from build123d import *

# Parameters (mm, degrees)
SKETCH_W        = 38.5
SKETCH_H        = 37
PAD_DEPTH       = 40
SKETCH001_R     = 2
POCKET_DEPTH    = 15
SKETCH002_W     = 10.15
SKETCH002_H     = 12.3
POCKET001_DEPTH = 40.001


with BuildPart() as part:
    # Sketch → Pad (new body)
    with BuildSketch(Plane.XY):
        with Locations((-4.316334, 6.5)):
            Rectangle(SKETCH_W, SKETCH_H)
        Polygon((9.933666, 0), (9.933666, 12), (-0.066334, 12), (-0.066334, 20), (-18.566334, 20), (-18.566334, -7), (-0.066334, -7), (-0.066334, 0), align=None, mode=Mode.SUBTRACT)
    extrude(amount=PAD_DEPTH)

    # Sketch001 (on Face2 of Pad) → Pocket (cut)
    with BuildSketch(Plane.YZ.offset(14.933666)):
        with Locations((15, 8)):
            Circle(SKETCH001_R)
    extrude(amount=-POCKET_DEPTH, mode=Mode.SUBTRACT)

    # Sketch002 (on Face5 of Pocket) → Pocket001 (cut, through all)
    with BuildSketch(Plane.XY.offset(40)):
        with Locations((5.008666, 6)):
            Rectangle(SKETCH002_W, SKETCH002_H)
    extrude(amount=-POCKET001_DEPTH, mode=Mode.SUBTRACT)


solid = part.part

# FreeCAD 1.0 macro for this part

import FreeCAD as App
import Part
import Sketcher
from FreeCAD import Vector


def add_polygon(sketch, points):
    """Adds a closed chain of lines whose ends are joined by coincident constraints."""
    first, n = sketch.GeometryCount, len(points)
    for a, b in zip(points, points[1:] + points[:1]):
        sketch.addGeometry(Part.LineSegment(App.Vector(*a, 0), App.Vector(*b, 0)), False)
    for i in range(n):
        sketch.addConstraint(Sketcher.Constraint("Coincident", first + i, 2, first + (i + 1) % n, 1))

doc = App.newDocument("Part")
params = doc.addObject("Spreadsheet::Sheet", "Params")
for row, (alias, value) in enumerate([
    ("sketch1_width", "10 mm"),
    ("sketch1_height", "37 mm"),
    ("sketch1_height2", "12 mm"),
    ("sketch1_height3", "7 mm"),
    ("sketch1_height4", "27 mm"),
    ("pad1_length", "40 mm"),
    ("sketch2_diameter", "4 mm"),
    ("pocket1_length", "15 mm"),
    ("sketch3_height", "12.3 mm"),
    ("sketch3_width", "10.15 mm"),
], start=1):
    params.set(f"A{row}", alias)
    params.set(f"B{row}", "=" + value)
    params.setAlias(f"B{row}", alias)

body = doc.addObject("PartDesign::Body", "Body")

# Sketch on XY plane
sketch1 = doc.addObject("Sketcher::SketchObject", "Sketch")
body.addObject(sketch1)
sketch1.AttachmentSupport = (doc.XY_Plane, [""])
sketch1.MapMode = "FlatFace"
add_polygon(sketch1, [(-24, 25), (-24, -12), (15, -12), (15, 25)])  # lines 0-3
add_polygon(sketch1, [(10, 12), (10, 0), (0, 0), (0, -7), (-19, -7), (-19, 20), (0, 20), (0, 12)])  # lines 4-11
sketch1.addConstraint(Sketcher.Constraint("Vertical", 0))
sketch1.addConstraint(Sketcher.Constraint("Horizontal", 1))
sketch1.addConstraint(Sketcher.Constraint("Vertical", 2))
sketch1.addConstraint(Sketcher.Constraint("Horizontal", 3))
sketch1.addConstraint(Sketcher.Constraint("Vertical", 4))
sketch1.addConstraint(Sketcher.Constraint("Horizontal", 5))
sketch1.addConstraint(Sketcher.Constraint("Vertical", 6))
sketch1.addConstraint(Sketcher.Constraint("Horizontal", 7))
sketch1.addConstraint(Sketcher.Constraint("Vertical", 8))
sketch1.addConstraint(Sketcher.Constraint("Horizontal", 9))
sketch1.addConstraint(Sketcher.Constraint("Vertical", 10))
sketch1.addConstraint(Sketcher.Constraint("Horizontal", 11))
sketch1.addConstraint(Sketcher.Constraint("PointOnObject", 4, 2, -1))
sketch1.addConstraint(Sketcher.Constraint("Vertical", 6, 2, 9, 2))
sketch1.addConstraint(Sketcher.Constraint("DistanceX", 5, 2, 5, 1, 10.0))
sketch1.addConstraint(Sketcher.Constraint("DistanceY", 0, 2, 0, 1, 37.0))
sketch1.addConstraint(Sketcher.Constraint("DistanceY", 4, 2, 4, 1, 12.0))
sketch1.addConstraint(Sketcher.Constraint("DistanceY", 6, 2, 6, 1, 7.0))
sketch1.addConstraint(Sketcher.Constraint("DistanceY", 8, 1, 8, 2, 27.0))
sketch1.addConstraint(Sketcher.Constraint("DistanceX", 1, 1, 1, 2, 38.5))
sketch1.addConstraint(Sketcher.Constraint("DistanceX", 7, 2, 7, 1, 18.5))
sketch1.addConstraint(Sketcher.Constraint("DistanceY", 0, 2, -1, 1, 12.0))
sketch1.addConstraint(Sketcher.Constraint("DistanceX", 4, 2, 1, 2, 5.0))
sketch1.addConstraint(Sketcher.Constraint("DistanceX", 0, 2, -1, 1, 23.566334))
sketch1.setExpression("Constraints[26]", "Params.sketch1_width")
sketch1.setExpression("Constraints[27]", "Params.sketch1_height")
sketch1.setExpression("Constraints[28]", "Params.sketch1_height2")
sketch1.setExpression("Constraints[29]", "Params.sketch1_height3")
sketch1.setExpression("Constraints[30]", "Params.sketch1_height4")
pad1 = doc.addObject("PartDesign::Pad", "Pad")
body.addObject(pad1)
pad1.Profile = sketch1
pad1.setExpression("Length", "Params.pad1_length")

# Sketch on YZ plane
sketch2 = doc.addObject("Sketcher::SketchObject", "Sketch001")
body.addObject(sketch2)
sketch2.AttachmentSupport = (doc.YZ_Plane, [""])
sketch2.MapMode = "FlatFace"
sketch2.AttachmentOffset = App.Placement(Vector(0, 0, 14.933666), App.Rotation())
sketch2.addGeometry(Part.Circle(Vector(15, 8, 0), Vector(0, 0, 1), 2), False)
sketch2.addConstraint(Sketcher.Constraint("Diameter", 0, 4.0))
sketch2.addConstraint(Sketcher.Constraint("DistanceX", -1, 1, 0, 3, 15.0))
sketch2.addConstraint(Sketcher.Constraint("DistanceY", -1, 1, 0, 3, 8.0))
sketch2.setExpression("Constraints[0]", "Params.sketch2_diameter")
pocket1 = doc.addObject("PartDesign::Pocket", "Pocket")
body.addObject(pocket1)
pocket1.Profile = sketch2
pocket1.setExpression("Length", "Params.pocket1_length")

# Sketch on XY plane
sketch3 = doc.addObject("Sketcher::SketchObject", "Sketch002")
body.addObject(sketch3)
sketch3.AttachmentSupport = (doc.XY_Plane, [""])
sketch3.MapMode = "FlatFace"
sketch3.AttachmentOffset = App.Placement(Vector(0, 0, 40), App.Rotation())
add_polygon(sketch3, [(0, 12), (0, 0), (10, 0), (10, 12)])  # lines 0-3
sketch3.addConstraint(Sketcher.Constraint("Vertical", 0))
sketch3.addConstraint(Sketcher.Constraint("Horizontal", 1))
sketch3.addConstraint(Sketcher.Constraint("Vertical", 2))
sketch3.addConstraint(Sketcher.Constraint("Horizontal", 3))
sketch3.addConstraint(Sketcher.Constraint("DistanceY", 0, 2, 0, 1, 12.3))
sketch3.addConstraint(Sketcher.Constraint("DistanceX", 1, 1, 1, 2, 10.15))
sketch3.addConstraint(Sketcher.Constraint("DistanceY", 0, 2, -1, 1, 0.15))
sketch3.addConstraint(Sketcher.Constraint("DistanceX", 0, 2, -1, 1, 0.066334))
sketch3.setExpression("Constraints[8]", "Params.sketch3_height")
sketch3.setExpression("Constraints[9]", "Params.sketch3_width")
pocket2 = doc.addObject("PartDesign::Pocket", "Pocket001")
body.addObject(pocket2)
pocket2.Profile = sketch3
pocket2.Type = "ThroughAll"

doc.recompute()
